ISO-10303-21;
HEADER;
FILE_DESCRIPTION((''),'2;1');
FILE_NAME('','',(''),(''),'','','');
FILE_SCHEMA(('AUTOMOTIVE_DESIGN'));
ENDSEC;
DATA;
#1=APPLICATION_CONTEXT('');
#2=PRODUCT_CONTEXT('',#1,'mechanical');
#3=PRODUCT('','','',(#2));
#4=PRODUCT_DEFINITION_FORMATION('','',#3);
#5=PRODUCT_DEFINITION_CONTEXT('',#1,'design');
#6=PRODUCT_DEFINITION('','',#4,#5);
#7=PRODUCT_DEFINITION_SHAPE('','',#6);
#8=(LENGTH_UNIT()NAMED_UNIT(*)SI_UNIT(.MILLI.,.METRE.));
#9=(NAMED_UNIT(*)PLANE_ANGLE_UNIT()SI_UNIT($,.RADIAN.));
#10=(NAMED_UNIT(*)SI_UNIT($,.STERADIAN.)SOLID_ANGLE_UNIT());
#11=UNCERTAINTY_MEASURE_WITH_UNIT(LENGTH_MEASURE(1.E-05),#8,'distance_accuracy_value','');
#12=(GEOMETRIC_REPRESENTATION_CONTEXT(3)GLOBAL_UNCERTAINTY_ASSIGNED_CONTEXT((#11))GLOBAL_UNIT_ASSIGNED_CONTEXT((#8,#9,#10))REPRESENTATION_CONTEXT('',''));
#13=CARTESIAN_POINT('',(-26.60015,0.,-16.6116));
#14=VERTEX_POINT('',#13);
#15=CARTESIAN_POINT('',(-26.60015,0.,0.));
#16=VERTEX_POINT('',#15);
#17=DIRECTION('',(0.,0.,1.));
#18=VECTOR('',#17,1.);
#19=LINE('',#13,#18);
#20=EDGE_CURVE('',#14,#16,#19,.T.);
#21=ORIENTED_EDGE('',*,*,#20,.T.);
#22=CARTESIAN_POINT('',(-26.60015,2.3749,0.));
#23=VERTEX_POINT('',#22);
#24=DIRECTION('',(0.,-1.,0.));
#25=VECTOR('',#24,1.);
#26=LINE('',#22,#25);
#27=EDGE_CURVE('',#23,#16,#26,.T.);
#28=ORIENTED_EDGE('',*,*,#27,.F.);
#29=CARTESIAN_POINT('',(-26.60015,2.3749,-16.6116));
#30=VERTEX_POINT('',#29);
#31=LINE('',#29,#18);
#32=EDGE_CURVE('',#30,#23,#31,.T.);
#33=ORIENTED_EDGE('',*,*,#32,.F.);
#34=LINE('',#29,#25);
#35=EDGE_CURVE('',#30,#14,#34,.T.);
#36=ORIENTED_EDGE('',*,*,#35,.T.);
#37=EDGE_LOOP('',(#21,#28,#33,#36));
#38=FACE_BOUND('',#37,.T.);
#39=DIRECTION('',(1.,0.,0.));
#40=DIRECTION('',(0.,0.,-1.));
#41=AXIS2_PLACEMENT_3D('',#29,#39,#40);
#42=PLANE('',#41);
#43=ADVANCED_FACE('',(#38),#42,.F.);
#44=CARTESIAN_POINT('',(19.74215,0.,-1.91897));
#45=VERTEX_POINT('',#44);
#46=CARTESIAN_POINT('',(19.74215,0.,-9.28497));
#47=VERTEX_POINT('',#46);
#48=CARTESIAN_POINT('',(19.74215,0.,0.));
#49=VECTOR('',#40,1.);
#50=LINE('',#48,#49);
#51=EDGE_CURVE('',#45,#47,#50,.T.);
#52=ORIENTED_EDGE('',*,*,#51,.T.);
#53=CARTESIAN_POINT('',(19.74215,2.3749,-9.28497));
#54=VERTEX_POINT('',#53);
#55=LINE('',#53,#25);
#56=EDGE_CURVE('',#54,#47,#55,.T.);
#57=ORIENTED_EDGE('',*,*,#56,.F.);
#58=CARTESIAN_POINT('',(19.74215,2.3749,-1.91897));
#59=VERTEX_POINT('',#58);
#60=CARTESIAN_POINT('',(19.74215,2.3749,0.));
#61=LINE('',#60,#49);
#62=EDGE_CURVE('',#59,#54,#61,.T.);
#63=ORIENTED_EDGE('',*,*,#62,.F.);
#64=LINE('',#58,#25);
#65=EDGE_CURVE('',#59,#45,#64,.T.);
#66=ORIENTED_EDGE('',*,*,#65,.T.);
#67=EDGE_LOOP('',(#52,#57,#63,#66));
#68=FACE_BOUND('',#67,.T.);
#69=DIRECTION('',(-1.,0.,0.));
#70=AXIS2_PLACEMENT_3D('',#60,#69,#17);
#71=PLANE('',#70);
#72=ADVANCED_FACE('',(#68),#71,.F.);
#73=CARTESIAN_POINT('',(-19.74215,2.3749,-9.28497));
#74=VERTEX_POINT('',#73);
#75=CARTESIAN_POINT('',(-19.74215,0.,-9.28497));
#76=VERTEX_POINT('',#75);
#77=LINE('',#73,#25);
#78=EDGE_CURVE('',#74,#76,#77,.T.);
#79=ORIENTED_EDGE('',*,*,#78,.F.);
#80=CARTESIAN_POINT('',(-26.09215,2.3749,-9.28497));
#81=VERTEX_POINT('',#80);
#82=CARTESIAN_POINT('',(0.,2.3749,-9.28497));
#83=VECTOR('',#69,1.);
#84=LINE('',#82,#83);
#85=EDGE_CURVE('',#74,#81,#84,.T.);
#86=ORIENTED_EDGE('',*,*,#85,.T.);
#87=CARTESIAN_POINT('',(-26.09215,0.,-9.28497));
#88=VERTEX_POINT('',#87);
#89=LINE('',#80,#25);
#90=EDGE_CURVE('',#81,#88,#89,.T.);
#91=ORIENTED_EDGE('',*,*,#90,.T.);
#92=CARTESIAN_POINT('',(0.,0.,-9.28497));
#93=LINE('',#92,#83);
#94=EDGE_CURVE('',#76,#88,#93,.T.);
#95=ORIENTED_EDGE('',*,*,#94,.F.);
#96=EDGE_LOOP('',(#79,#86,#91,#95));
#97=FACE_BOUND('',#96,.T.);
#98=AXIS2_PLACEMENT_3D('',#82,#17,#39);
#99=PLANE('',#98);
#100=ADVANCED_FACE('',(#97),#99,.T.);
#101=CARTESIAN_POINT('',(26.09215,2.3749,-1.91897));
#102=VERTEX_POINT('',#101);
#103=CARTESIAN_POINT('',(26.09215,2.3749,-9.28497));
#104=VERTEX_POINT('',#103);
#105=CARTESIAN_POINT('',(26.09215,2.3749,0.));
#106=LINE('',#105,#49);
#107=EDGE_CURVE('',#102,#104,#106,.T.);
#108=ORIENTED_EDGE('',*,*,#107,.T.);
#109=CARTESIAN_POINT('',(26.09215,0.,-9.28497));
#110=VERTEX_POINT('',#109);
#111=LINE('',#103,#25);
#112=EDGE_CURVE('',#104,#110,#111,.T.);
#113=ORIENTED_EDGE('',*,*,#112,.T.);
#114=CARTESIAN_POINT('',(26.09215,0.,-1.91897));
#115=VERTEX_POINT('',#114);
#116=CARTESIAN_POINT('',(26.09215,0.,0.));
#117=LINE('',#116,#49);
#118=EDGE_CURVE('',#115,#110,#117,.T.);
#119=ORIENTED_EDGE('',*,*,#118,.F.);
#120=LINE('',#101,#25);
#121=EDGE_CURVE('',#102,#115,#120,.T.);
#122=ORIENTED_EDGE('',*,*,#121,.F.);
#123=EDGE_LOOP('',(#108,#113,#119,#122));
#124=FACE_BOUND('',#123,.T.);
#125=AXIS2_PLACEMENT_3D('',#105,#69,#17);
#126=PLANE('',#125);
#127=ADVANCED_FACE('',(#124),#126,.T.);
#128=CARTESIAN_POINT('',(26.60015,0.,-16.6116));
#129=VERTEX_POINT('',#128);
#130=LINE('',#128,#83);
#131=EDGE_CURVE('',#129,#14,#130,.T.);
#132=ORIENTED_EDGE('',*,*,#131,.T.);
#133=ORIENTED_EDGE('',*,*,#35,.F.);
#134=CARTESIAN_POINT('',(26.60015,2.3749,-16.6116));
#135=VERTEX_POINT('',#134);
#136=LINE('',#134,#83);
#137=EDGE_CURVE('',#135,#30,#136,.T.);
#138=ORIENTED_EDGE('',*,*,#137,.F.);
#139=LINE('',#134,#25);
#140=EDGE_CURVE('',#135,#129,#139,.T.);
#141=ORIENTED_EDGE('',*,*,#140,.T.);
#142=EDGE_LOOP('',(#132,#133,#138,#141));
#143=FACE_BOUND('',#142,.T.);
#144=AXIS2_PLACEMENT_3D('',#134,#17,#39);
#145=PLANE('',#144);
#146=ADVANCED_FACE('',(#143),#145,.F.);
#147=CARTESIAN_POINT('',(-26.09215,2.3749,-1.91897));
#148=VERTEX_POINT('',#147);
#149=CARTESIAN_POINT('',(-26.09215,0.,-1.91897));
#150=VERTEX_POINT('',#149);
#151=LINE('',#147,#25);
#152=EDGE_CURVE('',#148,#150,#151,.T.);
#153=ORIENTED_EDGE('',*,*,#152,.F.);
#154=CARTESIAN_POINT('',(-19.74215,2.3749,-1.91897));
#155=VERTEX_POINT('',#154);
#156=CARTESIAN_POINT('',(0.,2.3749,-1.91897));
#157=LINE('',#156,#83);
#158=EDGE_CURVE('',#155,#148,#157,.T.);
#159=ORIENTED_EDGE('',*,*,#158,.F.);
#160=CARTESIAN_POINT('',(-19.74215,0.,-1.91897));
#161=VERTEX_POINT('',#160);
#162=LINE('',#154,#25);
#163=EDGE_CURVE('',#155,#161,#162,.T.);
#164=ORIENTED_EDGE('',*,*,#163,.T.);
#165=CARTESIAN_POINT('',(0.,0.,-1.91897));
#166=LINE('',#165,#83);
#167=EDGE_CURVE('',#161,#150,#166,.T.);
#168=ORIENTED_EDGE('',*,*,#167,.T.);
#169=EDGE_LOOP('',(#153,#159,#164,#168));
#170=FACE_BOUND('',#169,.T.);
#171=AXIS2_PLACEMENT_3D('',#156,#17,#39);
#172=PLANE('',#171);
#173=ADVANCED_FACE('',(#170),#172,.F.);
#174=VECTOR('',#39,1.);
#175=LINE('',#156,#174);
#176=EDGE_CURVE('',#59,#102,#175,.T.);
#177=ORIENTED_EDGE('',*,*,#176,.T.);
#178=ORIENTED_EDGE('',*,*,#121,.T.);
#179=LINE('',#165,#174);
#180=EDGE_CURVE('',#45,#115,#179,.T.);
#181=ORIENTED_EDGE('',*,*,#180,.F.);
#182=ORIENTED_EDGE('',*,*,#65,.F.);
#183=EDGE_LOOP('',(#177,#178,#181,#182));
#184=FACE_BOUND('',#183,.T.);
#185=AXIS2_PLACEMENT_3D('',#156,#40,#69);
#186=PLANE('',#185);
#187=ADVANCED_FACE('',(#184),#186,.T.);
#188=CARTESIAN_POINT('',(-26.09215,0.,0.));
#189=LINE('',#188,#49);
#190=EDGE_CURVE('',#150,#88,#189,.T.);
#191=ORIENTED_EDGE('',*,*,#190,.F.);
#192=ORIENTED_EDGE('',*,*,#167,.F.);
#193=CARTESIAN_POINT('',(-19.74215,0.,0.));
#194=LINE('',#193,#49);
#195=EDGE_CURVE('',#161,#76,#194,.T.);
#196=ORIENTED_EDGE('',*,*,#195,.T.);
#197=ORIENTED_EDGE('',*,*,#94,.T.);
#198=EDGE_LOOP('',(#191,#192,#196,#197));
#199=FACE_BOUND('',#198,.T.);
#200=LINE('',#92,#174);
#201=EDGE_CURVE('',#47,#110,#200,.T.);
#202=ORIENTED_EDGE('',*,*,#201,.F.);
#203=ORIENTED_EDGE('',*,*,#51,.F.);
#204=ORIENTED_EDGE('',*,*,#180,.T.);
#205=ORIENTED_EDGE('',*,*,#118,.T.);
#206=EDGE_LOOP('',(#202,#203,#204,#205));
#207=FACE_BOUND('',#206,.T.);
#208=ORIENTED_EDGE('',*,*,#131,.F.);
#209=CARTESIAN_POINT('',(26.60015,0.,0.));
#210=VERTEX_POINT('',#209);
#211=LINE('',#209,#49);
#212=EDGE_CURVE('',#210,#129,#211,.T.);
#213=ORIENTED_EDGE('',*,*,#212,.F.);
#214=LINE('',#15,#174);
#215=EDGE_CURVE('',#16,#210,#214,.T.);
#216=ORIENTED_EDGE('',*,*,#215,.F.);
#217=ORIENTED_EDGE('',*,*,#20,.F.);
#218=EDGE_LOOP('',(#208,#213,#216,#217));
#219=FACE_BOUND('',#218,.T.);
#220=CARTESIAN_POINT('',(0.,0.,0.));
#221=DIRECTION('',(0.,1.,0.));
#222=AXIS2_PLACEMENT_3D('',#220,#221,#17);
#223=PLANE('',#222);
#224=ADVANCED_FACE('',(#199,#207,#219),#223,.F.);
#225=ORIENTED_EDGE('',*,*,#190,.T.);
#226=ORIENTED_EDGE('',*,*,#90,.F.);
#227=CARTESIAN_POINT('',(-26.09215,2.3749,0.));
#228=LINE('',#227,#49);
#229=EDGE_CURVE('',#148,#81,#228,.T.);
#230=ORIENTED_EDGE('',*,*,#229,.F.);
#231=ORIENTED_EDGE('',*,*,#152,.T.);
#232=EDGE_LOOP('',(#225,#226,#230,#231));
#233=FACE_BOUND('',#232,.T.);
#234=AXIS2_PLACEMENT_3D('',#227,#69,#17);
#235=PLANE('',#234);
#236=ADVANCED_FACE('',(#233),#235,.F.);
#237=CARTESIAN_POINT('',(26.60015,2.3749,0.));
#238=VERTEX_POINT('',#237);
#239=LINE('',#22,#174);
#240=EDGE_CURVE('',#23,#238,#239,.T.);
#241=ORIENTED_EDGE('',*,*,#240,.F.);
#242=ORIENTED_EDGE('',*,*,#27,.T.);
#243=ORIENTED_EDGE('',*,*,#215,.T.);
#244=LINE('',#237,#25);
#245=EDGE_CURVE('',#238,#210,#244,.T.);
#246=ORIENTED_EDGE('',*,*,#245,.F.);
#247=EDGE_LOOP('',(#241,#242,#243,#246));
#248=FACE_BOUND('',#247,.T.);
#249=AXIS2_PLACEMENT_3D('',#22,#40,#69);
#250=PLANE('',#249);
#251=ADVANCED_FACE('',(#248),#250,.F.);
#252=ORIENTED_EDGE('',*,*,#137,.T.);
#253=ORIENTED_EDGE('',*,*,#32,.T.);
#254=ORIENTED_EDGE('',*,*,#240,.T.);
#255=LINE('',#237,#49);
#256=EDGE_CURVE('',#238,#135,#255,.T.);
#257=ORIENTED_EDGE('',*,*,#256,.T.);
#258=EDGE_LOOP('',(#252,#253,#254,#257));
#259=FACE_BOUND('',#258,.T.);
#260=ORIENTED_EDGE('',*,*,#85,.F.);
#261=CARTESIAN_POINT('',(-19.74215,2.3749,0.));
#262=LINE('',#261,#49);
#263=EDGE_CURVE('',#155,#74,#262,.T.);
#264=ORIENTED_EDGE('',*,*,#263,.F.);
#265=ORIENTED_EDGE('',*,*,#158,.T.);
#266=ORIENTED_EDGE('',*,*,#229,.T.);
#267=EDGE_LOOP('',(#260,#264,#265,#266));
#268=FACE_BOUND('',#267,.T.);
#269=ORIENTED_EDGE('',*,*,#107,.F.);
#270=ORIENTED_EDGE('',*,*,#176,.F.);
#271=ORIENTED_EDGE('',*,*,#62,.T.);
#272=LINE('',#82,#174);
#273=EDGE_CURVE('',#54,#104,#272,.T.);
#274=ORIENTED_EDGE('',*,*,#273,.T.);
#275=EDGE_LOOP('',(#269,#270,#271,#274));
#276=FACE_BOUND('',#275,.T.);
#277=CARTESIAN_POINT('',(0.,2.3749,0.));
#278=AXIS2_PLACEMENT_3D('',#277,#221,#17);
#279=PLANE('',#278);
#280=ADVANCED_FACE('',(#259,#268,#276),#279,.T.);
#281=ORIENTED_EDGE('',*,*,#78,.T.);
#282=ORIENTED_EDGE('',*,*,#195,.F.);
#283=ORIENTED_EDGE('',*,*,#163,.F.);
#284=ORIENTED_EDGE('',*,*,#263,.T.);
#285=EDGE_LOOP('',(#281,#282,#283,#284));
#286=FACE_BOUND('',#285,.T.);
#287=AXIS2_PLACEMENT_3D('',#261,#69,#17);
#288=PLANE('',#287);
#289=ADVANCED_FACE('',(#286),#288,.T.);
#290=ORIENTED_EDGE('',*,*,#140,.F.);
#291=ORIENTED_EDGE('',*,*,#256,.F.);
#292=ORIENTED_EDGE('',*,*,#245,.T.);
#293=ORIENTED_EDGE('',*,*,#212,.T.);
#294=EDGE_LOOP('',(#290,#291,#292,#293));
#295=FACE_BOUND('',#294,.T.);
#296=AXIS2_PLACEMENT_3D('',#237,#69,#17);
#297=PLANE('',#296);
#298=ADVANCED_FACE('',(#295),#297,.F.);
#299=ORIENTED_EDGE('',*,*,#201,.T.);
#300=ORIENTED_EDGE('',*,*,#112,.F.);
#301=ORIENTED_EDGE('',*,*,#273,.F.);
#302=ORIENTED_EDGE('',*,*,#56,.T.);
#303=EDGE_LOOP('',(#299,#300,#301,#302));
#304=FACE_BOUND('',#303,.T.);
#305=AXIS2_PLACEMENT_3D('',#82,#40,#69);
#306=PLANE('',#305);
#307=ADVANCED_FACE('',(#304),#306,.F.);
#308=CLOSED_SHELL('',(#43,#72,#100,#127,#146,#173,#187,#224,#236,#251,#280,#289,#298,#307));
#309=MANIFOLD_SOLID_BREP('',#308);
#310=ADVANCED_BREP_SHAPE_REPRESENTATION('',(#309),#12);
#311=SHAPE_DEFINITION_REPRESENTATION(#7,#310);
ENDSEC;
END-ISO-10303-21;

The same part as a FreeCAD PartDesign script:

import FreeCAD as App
import Part
import Sketcher
Q = App.Units.Quantity


def add_polygon(sketch, points):
    """Adds a closed chain of lines whose ends are joined by coincident constraints."""
    first, n = sketch.GeometryCount, len(points)
    for a, b in zip(points, points[1:] + points[:1]):
        sketch.addGeometry(Part.LineSegment(App.Vector(*a, 0), App.Vector(*b, 0)), False)
    for i in range(n):
        sketch.addConstraint(Sketcher.Constraint("Coincident", first + i, 2, first + (i + 1) % n, 1))

doc = App.newDocument("Part")
body = doc.addObject("PartDesign::Body", "Body")

# Sketch on XZ plane
sketch1 = doc.addObject("Sketcher::SketchObject", "Sketch")
body.addObject(sketch1)
sketch1.AttachmentSupport = (doc.XZ_Plane, [""])
sketch1.MapMode = "FlatFace"
add_polygon(sketch1, [(-27, -17), (-27, 0), (27, 0), (27, -17)])  # lines 0-3
add_polygon(sketch1, [(-20, -2), (-26, -2), (-26, -9), (-20, -9)])  # lines 4-7
add_polygon(sketch1, [(26, -2), (20, -2), (20, -9), (26, -9)])  # lines 8-11
sketch1.addConstraint([
    Sketcher.Constraint("Vertical", 0),
    Sketcher.Constraint("Horizontal", 1),
    Sketcher.Constraint("Vertical", 2),
    Sketcher.Constraint("Horizontal", 3),
    Sketcher.Constraint("Horizontal", 4),
    Sketcher.Constraint("Vertical", 5),
    Sketcher.Constraint("Horizontal", 6),
    Sketcher.Constraint("Vertical", 7),
    Sketcher.Constraint("Horizontal", 8),
    Sketcher.Constraint("Vertical", 9),
    Sketcher.Constraint("Horizontal", 10),
    Sketcher.Constraint("Vertical", 11),
    Sketcher.Constraint("Symmetric", 0, 2, 1, 2, -1, 1),
    Sketcher.Constraint("Symmetric", 7, 2, 8, 2, -2),
    Sketcher.Constraint("Symmetric", 5, 2, 10, 2, -2),
    Sketcher.Constraint("DistanceX", 4, 2, 4, 1, Q("0.25 in")),
    Sketcher.Constraint("DistanceY", 5, 2, 5, 1, Q("0.29 in")),
    Sketcher.Constraint("DistanceY", 0, 1, 0, 2, Q("0.654 in")),
    Sketcher.Constraint("DistanceX", 0, 2, 4, 2, Q("0.02 in")),
    Sketcher.Constraint("DistanceX", 1, 1, 1, 2, Q("2.0945 in")),
    Sketcher.Constraint("DistanceY", 4, 2, -1, 1, Q("1.91897 mm")),
])
pad1 = doc.addObject("PartDesign::Pad", "Pad")
body.addObject(pad1)
pad1.Profile = sketch1
pad1.Length = Q("0.0935 in")
pad1.Reversed = True

doc.recompute()
